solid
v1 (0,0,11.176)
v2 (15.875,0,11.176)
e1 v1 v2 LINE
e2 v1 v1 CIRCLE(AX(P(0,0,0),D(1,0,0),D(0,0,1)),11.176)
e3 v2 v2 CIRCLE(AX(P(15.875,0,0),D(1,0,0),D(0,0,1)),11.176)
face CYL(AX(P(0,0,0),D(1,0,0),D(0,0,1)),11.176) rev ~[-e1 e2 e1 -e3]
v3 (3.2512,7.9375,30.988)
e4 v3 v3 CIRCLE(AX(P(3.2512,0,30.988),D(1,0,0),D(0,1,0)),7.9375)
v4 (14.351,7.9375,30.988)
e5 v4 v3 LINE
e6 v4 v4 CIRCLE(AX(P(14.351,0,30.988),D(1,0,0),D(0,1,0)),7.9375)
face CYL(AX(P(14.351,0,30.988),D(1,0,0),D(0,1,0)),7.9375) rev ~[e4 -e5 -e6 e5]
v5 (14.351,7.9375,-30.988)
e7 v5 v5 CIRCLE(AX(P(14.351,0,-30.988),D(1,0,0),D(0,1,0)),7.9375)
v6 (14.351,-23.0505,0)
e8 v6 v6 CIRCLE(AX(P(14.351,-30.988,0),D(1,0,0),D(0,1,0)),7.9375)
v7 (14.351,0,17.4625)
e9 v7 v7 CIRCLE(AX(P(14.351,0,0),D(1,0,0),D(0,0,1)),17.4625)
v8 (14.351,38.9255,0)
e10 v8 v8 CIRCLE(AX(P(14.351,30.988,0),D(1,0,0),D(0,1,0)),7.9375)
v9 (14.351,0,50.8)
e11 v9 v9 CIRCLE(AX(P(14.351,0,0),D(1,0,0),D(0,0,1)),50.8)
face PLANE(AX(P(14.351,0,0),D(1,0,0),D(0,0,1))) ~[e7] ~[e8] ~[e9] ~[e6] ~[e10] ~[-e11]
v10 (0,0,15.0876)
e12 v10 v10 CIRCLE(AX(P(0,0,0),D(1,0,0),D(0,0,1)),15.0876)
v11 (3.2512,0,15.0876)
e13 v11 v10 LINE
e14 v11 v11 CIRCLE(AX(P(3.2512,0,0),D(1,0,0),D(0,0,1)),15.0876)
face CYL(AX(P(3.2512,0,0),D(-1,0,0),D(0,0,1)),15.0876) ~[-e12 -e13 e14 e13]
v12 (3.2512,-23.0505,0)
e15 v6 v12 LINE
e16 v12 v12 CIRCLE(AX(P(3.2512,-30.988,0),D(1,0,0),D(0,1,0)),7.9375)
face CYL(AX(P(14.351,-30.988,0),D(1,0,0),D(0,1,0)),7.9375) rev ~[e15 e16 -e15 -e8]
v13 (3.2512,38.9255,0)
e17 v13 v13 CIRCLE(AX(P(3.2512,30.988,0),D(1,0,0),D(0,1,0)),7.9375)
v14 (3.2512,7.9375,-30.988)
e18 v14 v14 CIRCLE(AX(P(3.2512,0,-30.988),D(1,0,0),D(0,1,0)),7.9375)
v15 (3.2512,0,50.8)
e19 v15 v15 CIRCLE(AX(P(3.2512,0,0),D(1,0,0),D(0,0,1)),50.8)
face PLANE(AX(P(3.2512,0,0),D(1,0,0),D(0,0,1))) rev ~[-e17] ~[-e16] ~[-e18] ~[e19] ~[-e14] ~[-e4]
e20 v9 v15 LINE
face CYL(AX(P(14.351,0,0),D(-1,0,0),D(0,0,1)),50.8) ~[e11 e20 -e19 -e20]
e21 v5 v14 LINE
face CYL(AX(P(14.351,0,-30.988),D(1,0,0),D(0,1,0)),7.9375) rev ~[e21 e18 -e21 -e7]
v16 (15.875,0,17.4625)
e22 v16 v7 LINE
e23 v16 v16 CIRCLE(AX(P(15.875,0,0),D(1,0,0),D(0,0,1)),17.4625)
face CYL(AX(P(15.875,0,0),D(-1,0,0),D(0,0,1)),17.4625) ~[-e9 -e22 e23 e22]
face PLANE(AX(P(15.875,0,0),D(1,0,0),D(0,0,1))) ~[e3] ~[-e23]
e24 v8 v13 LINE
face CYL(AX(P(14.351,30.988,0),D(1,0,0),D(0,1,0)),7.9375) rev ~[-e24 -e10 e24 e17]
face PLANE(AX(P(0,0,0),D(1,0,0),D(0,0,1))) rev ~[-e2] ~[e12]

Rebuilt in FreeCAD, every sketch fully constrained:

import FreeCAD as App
import Part
import Sketcher
Q = App.Units.Quantity

doc = App.newDocument("Part")
body = doc.addObject("PartDesign::Body", "Body")

# Sketch on XZ plane
sketch1 = body.newObject("Sketcher::SketchObject", "Sketch")
sketch1.AttachmentSupport = (doc.getObject("XZ_Plane"), [""])
sketch1.MapMode = "FlatFace"
sketch1.addGeometry([
    Part.LineSegment(App.Vector(3.3, 15.1, 0), App.Vector(0, 15.1, 0)),  # 0
    Part.LineSegment(App.Vector(0, 15.1, 0), App.Vector(0, 11.2, 0)),  # 1
    Part.LineSegment(App.Vector(0, 11.2, 0), App.Vector(15.9, 11.2, 0)),  # 2
    Part.LineSegment(App.Vector(15.9, 11.2, 0), App.Vector(15.9, 17.5, 0)),  # 3
    Part.LineSegment(App.Vector(15.9, 17.5, 0), App.Vector(14.4, 17.5, 0)),  # 4
    Part.LineSegment(App.Vector(14.4, 17.5, 0), App.Vector(14.4, 50.8, 0)),  # 5
    Part.LineSegment(App.Vector(14.4, 50.8, 0), App.Vector(3.3, 50.8, 0)),  # 6
    Part.LineSegment(App.Vector(3.3, 50.8, 0), App.Vector(3.3, 15.1, 0)),  # 7
], False)
sketch1.addConstraint([
    Sketcher.Constraint("Coincident", 0, 2, 1, 1),
    Sketcher.Constraint("Coincident", 1, 2, 2, 1),
    Sketcher.Constraint("Coincident", 2, 2, 3, 1),
    Sketcher.Constraint("Coincident", 3, 2, 4, 1),
    Sketcher.Constraint("Coincident", 4, 2, 5, 1),
    Sketcher.Constraint("Coincident", 5, 2, 6, 1),
    Sketcher.Constraint("Coincident", 6, 2, 7, 1),
    Sketcher.Constraint("Coincident", 7, 2, 0, 1),
    Sketcher.Constraint("Horizontal", 0),
    Sketcher.Constraint("Vertical", 1),
    Sketcher.Constraint("Horizontal", 2),
    Sketcher.Constraint("Vertical", 3),
    Sketcher.Constraint("Horizontal", 4),
    Sketcher.Constraint("Vertical", 5),
    Sketcher.Constraint("Horizontal", 6),
    Sketcher.Constraint("Vertical", 7),
    Sketcher.Constraint("PointOnObject", 0, 2, -2),
    Sketcher.Constraint("DistanceY", -1, 1, 5, 2, Q("2 in")),
    Sketcher.Constraint("DistanceX", 4, 2, 4, 1, Q("0.06 in")),
    Sketcher.Constraint("DistanceX", 0, 2, 0, 1, Q("0.128 in")),
    Sketcher.Constraint("DistanceX", 2, 1, 2, 2, Q("0.625 in")),
    Sketcher.Constraint("DistanceY", 1, 2, 1, 1, Q("0.154 in")),
    Sketcher.Constraint("DistanceY", 5, 1, 5, 2, Q("1.3125 in")),
    Sketcher.Constraint("DistanceY", 7, 2, 7, 1, Q("1.406 in")),
])
revolution = body.newObject("PartDesign::Revolution", "Revolution")
revolution.Profile = sketch1
revolution.ReferenceAxis = (sketch1, ["H_Axis"])
revolution.Angle = 360

# Sketch on YZ plane
sketch2 = body.newObject("Sketcher::SketchObject", "Sketch001")
sketch2.AttachmentSupport = (doc.getObject("YZ_Plane"), [""])
sketch2.MapMode = "FlatFace"
sketch2.AttachmentOffset = App.Placement(App.Vector(0, 0, 0.565 * 25.4), App.Rotation())
sketch2.addGeometry([
    Part.Circle(App.Vector(0, 31, 0), App.Vector(0, 0, 1), 8),
    Part.Circle(App.Vector(-31, 0, 0), App.Vector(0, 0, 1), 8),
    Part.Circle(App.Vector(0, -31, 0), App.Vector(0, 0, 1), 8),
    Part.Circle(App.Vector(31, 0, 0), App.Vector(0, 0, 1), 8),
], False)
sketch2.addConstraint([
    Sketcher.Constraint("Equal", 0, 1),
    Sketcher.Constraint("Equal", 1, 2),
    Sketcher.Constraint("Equal", 2, 3),
    Sketcher.Constraint("Symmetric", 0, 3, 2, 3, -1, 1),
    Sketcher.Constraint("Symmetric", 1, 3, 3, 3, -1, 1),
    Sketcher.Constraint("PointOnObject", 0, 3, -2),
    Sketcher.Constraint("PointOnObject", 1, 3, -1),
    Sketcher.Constraint("Diameter", 0, Q("0.625 in")),
    Sketcher.Constraint("DistanceY", -1, 1, 0, 3, Q("1.22 in")),
    Sketcher.Constraint("DistanceX", 1, 3, -1, 1, Q("1.22 in")),
])
pocket1 = body.newObject("PartDesign::Pocket", "Pocket")
pocket1.Profile = sketch2
pocket1.Type = "ThroughAll"

doc.recompute()
